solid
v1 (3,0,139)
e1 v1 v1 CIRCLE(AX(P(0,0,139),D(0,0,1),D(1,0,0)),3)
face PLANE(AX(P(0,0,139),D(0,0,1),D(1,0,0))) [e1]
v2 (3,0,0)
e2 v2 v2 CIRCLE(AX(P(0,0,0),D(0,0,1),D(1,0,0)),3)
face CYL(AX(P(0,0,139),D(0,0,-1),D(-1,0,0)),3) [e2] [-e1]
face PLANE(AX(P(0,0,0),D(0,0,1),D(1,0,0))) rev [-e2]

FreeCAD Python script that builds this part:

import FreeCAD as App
import Part
import Sketcher
from FreeCAD import Vector

doc = App.newDocument("Part")
body = doc.addObject("PartDesign::Body", "Body")

sketch1 = body.newObject("Sketcher::SketchObject", "Sketch")
sketch1.AttachmentSupport = (doc.getObject("XY_Plane"), [""])
sketch1.MapMode = "FlatFace"
sketch1.addGeometry(Part.Circle(Vector(0, 0, 0), Vector(0, 0, 1), 3), False)
sketch1.addConstraint([
    Sketcher.Constraint("Coincident", 0, 3, -1, 1),
    Sketcher.Constraint("Diameter", 0, 6.0),
])
pad1 = body.newObject("PartDesign::Pad", "Pad")
pad1.Profile = sketch1
pad1.Length = 139

doc.recompute()
